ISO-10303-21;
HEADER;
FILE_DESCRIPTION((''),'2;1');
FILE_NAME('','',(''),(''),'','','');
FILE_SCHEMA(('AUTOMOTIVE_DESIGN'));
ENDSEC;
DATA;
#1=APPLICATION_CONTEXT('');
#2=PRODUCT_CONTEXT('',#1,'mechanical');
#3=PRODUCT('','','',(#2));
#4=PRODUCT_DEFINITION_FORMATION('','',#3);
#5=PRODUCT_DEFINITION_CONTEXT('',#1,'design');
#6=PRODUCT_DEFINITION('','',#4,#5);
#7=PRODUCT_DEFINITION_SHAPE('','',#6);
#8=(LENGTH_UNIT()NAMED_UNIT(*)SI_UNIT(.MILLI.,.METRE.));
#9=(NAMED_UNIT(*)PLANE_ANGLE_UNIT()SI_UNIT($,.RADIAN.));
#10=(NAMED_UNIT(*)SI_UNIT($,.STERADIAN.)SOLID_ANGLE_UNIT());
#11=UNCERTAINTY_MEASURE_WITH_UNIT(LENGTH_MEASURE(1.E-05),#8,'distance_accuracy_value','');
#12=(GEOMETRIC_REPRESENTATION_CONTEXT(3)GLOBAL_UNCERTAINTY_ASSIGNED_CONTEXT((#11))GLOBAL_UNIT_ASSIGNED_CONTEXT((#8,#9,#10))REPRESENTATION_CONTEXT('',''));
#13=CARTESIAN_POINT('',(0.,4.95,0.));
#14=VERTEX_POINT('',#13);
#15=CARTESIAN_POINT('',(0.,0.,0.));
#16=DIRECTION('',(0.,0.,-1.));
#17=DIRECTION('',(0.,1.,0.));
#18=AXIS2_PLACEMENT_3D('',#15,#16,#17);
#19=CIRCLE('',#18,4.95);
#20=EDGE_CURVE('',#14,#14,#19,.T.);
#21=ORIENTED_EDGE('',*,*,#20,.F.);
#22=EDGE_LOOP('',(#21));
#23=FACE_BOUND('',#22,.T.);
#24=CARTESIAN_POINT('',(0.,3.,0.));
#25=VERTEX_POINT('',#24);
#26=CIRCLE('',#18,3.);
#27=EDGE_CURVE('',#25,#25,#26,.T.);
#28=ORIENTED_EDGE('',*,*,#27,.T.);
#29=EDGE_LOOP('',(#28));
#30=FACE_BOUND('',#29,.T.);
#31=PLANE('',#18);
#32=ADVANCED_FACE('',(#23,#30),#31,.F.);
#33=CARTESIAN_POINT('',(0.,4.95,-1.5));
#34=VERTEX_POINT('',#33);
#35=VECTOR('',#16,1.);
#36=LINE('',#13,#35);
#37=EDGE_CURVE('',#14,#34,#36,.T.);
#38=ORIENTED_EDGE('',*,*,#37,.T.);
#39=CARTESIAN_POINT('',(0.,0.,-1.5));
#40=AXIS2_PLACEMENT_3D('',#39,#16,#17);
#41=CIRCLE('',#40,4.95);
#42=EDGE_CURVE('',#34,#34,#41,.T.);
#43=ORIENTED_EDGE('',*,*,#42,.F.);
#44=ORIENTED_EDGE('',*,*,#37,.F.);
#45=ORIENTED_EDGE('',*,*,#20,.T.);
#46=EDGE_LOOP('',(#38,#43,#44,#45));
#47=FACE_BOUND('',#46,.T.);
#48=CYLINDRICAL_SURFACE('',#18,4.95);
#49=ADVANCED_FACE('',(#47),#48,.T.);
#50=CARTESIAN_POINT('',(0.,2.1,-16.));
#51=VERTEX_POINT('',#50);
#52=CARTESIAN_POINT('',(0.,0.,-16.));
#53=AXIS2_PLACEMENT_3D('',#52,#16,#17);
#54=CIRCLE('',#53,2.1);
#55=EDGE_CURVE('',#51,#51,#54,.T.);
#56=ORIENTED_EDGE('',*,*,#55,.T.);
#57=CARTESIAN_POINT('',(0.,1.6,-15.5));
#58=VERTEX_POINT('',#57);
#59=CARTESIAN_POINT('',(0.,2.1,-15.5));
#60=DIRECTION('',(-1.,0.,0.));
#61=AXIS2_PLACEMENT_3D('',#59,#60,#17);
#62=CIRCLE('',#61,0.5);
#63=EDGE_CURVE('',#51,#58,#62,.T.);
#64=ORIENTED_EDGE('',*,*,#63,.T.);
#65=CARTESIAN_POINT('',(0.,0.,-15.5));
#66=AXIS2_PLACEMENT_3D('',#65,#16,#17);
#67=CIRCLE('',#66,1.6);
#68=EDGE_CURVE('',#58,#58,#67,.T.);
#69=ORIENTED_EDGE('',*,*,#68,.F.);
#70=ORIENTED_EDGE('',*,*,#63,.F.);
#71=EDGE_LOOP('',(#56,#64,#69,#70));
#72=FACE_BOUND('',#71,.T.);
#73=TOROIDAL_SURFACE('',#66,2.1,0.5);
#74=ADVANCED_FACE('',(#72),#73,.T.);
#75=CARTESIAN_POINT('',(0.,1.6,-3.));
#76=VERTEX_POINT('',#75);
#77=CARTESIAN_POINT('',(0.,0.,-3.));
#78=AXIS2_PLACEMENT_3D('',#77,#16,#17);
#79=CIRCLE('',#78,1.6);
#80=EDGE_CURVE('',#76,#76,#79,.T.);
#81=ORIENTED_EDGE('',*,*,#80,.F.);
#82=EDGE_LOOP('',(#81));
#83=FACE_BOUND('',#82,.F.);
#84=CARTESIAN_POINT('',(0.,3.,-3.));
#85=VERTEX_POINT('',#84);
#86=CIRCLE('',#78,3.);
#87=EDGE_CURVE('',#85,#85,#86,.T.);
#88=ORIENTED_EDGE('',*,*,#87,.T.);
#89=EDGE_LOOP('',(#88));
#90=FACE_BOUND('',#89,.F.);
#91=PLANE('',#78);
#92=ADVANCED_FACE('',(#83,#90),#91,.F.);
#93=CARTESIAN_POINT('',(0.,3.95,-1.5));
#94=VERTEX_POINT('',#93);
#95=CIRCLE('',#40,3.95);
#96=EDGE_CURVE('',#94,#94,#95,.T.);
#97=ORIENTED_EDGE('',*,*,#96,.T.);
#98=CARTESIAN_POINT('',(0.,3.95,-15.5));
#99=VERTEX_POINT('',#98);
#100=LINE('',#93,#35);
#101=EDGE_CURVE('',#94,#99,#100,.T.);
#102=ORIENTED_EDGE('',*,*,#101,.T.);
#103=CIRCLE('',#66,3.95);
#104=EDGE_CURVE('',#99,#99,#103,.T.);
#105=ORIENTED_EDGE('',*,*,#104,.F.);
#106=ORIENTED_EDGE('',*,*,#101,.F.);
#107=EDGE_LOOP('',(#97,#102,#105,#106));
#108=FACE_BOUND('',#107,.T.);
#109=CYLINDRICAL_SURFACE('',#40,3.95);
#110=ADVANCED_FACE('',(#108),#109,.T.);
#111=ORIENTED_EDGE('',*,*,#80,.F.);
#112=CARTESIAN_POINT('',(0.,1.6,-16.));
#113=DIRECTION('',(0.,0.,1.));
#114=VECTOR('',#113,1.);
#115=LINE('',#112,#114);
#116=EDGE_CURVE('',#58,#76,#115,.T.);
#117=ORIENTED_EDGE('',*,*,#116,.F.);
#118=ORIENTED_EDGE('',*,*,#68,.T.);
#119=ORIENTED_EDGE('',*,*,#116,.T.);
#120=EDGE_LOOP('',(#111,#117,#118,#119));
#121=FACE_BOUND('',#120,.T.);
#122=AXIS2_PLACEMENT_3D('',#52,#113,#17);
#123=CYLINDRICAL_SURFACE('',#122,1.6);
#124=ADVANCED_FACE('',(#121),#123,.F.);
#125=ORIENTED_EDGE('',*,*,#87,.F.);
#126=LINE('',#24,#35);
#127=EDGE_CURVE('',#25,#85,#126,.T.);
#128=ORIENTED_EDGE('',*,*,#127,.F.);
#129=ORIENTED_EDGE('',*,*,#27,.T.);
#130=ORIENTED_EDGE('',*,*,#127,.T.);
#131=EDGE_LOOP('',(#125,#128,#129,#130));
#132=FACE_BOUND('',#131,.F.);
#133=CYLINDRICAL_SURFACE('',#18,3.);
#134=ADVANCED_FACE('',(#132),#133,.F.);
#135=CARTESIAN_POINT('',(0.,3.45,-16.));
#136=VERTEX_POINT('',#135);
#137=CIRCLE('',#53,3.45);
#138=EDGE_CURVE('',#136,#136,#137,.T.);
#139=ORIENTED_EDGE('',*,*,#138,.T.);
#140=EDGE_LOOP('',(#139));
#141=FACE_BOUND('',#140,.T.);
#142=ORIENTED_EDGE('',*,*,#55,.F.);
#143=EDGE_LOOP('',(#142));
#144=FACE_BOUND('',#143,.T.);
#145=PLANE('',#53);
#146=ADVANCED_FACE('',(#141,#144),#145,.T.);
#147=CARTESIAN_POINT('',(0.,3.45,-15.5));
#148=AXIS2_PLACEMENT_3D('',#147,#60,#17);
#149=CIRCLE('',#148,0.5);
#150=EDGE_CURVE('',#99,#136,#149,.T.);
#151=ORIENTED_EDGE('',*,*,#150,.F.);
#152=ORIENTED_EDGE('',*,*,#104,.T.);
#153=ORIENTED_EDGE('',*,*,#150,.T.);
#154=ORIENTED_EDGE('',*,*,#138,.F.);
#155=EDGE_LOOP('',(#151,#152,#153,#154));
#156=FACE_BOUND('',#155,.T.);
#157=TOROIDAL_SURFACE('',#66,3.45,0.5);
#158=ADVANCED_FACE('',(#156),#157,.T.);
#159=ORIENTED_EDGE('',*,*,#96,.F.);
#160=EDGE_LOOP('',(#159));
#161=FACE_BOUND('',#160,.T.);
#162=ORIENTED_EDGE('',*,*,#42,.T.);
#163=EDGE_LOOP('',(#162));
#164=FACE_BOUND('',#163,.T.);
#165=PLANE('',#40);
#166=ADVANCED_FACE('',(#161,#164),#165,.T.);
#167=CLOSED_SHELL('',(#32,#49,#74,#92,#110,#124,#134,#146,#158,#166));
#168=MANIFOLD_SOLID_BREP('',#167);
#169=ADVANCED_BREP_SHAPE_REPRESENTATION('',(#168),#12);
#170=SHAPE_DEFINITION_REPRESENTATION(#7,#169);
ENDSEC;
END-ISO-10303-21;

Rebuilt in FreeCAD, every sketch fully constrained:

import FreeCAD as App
import Part
import Sketcher
from FreeCAD import Vector
Q = App.Units.Quantity


def edges_at(feature, points):
    """Names of the edges that pass closest to the given points."""
    edges = feature.Shape.Edges
    near = lambda p: min(range(len(edges)), key=lambda i: edges[i].distToShape(Part.Vertex(*p))[0])
    return sorted({f"Edge{near(p) + 1}" for p in points})


def add_polygon(sketch, points):
    """Adds a closed chain of lines whose ends are joined by coincident constraints."""
    first, n = sketch.GeometryCount, len(points)
    for a, b in zip(points, points[1:] + points[:1]):
        sketch.addGeometry(Part.LineSegment(App.Vector(*a, 0), App.Vector(*b, 0)), False)
    for i in range(n):
        sketch.addConstraint(Sketcher.Constraint("Coincident", first + i, 2, first + (i + 1) % n, 1))

doc = App.newDocument("Part")
body = doc.addObject("PartDesign::Body", "Body")

# Sketch on YZ plane
sketch1 = doc.addObject("Sketcher::SketchObject", "Sketch")
body.addObject(sketch1)
sketch1.AttachmentSupport = (doc.YZ_Plane, [""])
sketch1.MapMode = "FlatFace"
add_polygon(sketch1, [(5, -1.5), (5, 0), (3, 0), (3, -3), (1.6, -3), (1.6, -16), (4, -16), (4, -1.5)])  # lines 0-7
sketch1.addConstraint([
    Sketcher.Constraint("Vertical", 0),
    Sketcher.Constraint("Horizontal", 1),
    Sketcher.Constraint("Vertical", 2),
    Sketcher.Constraint("Horizontal", 3),
    Sketcher.Constraint("Vertical", 4),
    Sketcher.Constraint("Horizontal", 5),
    Sketcher.Constraint("Vertical", 6),
    Sketcher.Constraint("Horizontal", 7),
    Sketcher.Constraint("PointOnObject", 0, 2, -1),
    Sketcher.Constraint("DistanceX", 7, 1, 7, 2, Q("1 mm")),
    Sketcher.Constraint("DistanceY", 2, 2, 2, 1, Q("3 mm")),
    Sketcher.Constraint("DistanceY", 0, 1, 0, 2, Q("1.5 mm")),
    Sketcher.Constraint("DistanceY", 6, 1, 6, 2, Q("14.5 mm")),
    Sketcher.Constraint("DistanceX", -1, 1, 1, 2, Q("3 mm")),
    Sketcher.Constraint("DistanceX", -1, 1, 3, 2, Q("1.6 mm")),
    Sketcher.Constraint("DistanceX", -1, 1, 5, 2, Q("3.95 mm")),
])
revolution = doc.addObject("PartDesign::Revolution", "Revolution")
body.addObject(revolution)
revolution.Profile = sketch1
revolution.ReferenceAxis = (sketch1, ["V_Axis"])
revolution.Angle = 360
doc.recompute()

fillet = doc.addObject("PartDesign::Fillet", "Fillet")
body.addObject(fillet)
fillet.Base = (revolution, edges_at(revolution, [(0, -1.6, -16), (0, -3.95, -16)]))
fillet.Radius = 0.5

doc.recompute()
